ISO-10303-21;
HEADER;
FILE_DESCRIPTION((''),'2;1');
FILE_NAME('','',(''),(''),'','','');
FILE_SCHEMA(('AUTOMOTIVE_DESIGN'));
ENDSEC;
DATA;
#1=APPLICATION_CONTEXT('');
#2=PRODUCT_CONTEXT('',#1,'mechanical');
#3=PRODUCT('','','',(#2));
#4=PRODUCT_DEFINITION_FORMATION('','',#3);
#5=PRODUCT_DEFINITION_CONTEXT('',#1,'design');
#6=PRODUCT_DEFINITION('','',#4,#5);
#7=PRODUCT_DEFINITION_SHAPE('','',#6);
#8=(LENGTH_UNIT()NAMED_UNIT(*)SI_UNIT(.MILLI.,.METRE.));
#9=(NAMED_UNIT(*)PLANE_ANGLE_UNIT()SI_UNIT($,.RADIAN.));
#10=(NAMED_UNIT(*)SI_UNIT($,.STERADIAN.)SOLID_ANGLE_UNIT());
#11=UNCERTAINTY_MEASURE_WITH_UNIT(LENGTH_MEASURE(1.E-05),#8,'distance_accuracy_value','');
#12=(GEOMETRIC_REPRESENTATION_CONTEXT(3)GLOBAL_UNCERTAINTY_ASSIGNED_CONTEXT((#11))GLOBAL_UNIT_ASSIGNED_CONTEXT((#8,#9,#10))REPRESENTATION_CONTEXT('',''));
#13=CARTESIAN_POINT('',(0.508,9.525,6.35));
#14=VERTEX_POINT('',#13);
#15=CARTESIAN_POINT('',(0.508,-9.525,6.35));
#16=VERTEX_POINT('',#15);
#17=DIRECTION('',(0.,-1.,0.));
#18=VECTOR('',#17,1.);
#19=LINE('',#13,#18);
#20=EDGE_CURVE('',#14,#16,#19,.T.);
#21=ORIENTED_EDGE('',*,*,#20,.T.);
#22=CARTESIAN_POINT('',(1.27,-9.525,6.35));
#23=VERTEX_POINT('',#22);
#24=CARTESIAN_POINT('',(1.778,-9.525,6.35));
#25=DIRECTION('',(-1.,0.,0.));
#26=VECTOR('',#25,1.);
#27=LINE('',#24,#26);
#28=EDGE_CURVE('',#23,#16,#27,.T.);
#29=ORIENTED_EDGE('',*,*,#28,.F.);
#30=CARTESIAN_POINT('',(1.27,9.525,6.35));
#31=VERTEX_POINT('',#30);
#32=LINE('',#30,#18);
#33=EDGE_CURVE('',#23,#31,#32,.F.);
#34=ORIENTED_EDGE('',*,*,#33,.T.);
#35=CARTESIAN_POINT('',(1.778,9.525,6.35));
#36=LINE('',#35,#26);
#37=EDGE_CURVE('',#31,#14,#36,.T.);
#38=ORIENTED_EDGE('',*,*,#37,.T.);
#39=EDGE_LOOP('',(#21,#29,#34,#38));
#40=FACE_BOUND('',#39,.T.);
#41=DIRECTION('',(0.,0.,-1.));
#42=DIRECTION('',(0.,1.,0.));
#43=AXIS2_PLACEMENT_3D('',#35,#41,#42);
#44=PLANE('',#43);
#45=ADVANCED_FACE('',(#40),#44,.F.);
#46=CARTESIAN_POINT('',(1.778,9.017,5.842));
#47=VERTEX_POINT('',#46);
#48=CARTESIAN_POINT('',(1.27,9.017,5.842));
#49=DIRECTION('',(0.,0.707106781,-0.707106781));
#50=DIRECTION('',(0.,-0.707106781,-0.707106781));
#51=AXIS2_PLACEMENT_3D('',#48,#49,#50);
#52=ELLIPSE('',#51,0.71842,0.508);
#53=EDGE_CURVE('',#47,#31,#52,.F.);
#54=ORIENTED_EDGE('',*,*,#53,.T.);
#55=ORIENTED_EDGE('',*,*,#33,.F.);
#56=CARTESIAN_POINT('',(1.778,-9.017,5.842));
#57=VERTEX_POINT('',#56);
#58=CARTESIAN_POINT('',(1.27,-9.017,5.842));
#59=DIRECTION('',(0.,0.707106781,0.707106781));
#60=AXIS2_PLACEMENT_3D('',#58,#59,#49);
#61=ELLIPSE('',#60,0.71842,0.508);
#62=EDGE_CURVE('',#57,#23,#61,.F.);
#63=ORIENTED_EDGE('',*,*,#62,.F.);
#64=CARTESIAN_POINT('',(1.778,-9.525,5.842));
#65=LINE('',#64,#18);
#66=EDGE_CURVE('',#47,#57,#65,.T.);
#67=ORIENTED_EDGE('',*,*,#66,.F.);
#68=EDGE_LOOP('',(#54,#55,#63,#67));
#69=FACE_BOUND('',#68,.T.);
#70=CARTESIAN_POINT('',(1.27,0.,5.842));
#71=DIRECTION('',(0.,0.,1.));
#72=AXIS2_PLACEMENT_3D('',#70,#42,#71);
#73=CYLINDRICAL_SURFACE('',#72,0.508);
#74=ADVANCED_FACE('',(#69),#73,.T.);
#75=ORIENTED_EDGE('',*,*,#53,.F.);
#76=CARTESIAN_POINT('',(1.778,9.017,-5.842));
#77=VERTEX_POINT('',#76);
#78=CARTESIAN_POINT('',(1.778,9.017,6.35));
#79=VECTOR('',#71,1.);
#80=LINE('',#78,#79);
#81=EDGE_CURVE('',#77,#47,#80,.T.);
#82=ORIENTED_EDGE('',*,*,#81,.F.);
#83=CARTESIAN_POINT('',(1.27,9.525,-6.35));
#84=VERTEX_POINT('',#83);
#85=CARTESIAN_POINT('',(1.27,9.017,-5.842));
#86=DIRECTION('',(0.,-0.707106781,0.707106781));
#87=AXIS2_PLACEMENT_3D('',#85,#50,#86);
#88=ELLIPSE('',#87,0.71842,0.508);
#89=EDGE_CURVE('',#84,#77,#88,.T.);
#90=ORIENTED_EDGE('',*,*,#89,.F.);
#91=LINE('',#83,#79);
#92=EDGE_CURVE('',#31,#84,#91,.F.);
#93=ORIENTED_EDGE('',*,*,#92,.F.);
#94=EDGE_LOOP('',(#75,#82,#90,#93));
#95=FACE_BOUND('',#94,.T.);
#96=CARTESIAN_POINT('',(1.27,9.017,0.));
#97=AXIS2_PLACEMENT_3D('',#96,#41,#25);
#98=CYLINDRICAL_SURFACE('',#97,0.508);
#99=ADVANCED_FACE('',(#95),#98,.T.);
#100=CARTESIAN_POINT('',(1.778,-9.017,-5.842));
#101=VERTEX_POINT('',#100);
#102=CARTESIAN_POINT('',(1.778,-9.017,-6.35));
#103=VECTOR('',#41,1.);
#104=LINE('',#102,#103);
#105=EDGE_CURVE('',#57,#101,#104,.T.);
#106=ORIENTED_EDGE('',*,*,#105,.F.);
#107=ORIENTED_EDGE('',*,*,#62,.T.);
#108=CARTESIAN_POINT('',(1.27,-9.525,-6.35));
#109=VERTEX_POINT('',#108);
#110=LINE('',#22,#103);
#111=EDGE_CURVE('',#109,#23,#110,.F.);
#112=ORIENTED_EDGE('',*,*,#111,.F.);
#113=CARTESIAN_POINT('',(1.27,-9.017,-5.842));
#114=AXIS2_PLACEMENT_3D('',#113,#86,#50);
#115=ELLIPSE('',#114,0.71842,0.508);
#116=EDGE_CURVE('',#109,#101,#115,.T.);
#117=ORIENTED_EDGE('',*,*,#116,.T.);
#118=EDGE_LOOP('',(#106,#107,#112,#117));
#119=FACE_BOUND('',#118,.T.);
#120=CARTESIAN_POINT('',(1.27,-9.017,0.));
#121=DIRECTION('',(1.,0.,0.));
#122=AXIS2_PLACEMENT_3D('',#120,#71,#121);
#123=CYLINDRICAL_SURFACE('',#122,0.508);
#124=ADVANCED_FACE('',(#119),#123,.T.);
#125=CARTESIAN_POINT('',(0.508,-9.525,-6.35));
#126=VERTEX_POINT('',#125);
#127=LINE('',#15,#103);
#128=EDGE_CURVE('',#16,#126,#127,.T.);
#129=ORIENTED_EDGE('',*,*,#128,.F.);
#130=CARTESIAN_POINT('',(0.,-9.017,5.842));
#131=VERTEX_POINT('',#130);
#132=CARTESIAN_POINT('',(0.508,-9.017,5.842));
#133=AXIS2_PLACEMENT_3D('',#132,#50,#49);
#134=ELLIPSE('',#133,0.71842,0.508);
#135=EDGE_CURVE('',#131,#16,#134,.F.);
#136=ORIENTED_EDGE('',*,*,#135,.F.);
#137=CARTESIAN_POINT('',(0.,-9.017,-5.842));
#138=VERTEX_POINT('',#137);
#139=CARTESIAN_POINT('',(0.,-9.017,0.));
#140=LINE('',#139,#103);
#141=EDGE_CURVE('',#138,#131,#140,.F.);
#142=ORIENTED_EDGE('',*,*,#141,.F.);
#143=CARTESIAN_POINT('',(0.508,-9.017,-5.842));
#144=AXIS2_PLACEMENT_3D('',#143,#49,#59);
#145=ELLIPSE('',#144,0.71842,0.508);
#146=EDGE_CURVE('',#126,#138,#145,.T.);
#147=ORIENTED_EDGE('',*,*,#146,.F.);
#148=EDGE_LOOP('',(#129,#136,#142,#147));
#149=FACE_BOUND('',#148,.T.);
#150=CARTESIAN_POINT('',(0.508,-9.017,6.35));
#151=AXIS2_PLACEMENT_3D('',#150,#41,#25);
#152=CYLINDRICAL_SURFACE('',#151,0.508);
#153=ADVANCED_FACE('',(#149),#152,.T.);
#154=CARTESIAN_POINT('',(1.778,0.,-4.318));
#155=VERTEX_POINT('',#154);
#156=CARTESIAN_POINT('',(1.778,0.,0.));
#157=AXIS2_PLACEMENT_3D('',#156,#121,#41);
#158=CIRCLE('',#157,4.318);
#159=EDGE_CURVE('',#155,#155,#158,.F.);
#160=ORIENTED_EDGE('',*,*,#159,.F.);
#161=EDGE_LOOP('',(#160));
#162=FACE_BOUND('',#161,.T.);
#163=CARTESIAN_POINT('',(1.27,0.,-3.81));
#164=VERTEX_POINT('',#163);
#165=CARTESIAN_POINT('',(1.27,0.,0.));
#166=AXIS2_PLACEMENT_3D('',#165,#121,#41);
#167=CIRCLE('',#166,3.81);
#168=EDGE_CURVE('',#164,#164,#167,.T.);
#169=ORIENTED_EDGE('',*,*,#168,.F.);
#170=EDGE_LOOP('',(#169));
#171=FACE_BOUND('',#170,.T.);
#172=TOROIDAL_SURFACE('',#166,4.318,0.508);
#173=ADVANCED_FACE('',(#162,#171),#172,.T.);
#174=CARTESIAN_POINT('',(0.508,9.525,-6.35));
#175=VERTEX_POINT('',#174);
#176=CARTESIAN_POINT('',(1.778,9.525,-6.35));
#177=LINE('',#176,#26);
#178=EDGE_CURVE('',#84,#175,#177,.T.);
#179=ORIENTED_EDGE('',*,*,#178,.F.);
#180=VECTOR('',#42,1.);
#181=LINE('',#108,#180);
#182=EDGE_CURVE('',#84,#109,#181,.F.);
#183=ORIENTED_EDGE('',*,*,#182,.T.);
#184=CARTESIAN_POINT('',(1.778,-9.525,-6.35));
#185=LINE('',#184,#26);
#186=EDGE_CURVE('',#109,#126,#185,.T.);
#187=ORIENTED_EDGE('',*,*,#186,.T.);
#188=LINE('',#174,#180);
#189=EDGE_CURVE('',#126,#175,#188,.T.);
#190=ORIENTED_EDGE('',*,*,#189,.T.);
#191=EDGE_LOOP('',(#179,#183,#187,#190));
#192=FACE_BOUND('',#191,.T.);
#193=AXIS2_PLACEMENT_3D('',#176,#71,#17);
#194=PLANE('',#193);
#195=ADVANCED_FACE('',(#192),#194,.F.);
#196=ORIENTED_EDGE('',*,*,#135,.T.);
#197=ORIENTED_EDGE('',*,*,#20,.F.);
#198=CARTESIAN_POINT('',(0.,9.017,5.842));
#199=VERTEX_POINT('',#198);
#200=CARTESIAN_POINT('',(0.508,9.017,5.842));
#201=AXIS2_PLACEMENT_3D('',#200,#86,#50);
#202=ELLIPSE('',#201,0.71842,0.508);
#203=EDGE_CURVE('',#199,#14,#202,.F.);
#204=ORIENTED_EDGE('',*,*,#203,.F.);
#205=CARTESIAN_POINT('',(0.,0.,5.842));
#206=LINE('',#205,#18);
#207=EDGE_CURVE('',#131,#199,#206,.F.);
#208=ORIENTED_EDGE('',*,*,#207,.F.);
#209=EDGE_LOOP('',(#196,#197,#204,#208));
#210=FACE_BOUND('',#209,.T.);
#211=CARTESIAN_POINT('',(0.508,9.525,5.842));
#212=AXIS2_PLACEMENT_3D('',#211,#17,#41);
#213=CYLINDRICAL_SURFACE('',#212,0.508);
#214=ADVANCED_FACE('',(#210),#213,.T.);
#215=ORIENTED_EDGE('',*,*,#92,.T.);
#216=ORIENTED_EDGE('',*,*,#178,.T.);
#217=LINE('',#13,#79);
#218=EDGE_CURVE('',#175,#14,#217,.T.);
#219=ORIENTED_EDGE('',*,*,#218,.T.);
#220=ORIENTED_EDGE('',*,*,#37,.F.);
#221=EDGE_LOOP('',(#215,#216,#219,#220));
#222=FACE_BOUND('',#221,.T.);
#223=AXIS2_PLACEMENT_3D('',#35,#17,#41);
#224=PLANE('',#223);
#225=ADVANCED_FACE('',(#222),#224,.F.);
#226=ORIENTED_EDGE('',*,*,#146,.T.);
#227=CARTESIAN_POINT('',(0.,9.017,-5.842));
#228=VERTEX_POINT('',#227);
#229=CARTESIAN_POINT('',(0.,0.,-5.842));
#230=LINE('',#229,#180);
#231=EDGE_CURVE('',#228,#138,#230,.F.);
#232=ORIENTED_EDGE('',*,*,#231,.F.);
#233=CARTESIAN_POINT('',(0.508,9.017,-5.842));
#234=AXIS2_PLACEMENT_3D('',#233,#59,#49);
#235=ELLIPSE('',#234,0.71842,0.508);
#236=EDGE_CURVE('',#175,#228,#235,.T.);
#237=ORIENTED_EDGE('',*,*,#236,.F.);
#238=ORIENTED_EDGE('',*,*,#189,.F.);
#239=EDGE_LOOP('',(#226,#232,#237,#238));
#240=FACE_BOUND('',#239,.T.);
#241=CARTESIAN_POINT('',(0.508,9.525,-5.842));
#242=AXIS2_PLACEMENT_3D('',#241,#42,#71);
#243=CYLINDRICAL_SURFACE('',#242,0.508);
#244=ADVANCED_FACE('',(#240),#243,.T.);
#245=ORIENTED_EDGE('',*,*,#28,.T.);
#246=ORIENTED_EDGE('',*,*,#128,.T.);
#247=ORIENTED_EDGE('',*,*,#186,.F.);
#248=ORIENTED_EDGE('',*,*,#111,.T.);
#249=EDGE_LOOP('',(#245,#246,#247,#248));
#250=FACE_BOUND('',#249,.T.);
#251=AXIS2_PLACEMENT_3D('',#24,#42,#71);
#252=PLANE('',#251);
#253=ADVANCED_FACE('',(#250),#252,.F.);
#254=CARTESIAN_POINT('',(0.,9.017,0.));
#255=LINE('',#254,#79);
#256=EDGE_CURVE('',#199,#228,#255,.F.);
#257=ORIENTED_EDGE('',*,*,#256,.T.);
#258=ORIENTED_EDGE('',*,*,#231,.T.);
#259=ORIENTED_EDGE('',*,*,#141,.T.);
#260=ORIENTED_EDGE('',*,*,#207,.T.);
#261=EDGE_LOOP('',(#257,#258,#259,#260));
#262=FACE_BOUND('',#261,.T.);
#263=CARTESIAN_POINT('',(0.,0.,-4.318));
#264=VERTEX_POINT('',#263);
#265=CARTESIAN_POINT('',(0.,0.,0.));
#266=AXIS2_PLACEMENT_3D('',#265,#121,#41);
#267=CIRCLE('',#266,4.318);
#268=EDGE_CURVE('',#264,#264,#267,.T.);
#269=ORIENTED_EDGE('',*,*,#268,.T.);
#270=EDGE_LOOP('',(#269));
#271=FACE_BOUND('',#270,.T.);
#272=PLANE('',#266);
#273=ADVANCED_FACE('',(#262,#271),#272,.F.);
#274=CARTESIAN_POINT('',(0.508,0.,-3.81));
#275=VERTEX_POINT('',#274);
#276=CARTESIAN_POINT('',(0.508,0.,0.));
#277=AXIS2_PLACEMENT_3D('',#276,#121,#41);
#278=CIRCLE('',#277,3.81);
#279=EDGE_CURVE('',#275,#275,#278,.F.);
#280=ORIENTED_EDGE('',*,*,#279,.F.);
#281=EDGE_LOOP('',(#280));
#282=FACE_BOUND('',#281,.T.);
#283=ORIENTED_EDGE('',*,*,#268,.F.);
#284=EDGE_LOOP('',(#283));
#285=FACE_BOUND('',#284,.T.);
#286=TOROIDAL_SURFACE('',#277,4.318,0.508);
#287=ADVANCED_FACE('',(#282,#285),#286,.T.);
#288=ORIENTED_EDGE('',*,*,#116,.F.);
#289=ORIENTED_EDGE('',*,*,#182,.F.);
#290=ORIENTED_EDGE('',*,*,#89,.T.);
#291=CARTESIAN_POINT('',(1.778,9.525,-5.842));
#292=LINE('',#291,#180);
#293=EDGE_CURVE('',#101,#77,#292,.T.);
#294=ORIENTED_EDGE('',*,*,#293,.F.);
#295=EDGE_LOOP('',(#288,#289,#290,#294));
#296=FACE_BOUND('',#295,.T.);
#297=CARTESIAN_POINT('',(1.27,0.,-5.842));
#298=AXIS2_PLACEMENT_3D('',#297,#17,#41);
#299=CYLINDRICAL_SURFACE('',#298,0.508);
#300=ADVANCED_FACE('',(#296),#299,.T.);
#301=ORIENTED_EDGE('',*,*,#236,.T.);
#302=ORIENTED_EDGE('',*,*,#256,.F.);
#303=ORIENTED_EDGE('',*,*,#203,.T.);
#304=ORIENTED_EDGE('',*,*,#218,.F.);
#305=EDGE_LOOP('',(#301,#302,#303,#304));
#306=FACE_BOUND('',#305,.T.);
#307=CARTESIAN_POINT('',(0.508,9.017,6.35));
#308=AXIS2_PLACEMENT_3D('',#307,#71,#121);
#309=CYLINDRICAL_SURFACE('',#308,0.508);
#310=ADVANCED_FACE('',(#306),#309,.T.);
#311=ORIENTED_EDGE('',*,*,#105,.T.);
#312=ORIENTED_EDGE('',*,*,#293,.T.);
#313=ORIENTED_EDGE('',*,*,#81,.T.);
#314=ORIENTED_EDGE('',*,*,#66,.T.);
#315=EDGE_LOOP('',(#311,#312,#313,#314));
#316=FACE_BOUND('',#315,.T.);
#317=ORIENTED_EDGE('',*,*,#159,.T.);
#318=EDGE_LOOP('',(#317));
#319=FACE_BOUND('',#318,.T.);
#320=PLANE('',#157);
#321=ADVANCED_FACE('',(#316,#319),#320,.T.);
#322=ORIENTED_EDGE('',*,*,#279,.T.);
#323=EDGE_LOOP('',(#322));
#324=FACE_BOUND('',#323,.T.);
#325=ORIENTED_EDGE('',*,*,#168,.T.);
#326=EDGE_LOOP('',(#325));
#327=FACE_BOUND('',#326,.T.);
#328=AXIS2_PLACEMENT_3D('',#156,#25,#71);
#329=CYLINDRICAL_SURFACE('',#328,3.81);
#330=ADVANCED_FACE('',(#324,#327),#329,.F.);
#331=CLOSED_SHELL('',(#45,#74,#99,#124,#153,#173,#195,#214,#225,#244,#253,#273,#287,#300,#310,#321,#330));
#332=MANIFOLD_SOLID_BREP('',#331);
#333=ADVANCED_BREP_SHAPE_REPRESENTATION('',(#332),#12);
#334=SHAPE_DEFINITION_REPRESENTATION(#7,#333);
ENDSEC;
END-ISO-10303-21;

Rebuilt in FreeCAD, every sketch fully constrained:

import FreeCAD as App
import Part
import Sketcher

V = App.Vector
Q = App.Units.Quantity


def edges_at(feature, points):
    """Names of the edges that pass closest to the given points."""
    edges = feature.Shape.Edges
    near = lambda p: min(range(len(edges)), key=lambda i: edges[i].distToShape(Part.Vertex(*p))[0])
    return sorted({f"Edge{near(p) + 1}" for p in points})

doc = App.newDocument("Part")
params = doc.addObject("Spreadsheet::Sheet", "Params")
for row, (alias, value) in enumerate([
    ("sketch1_diameter", "0.3 in"),
    ("sketch1_height", "0.5 in"),
    ("sketch1_width", "0.75 in"),
    ("pad1_length", "0.07 in"),
    ("fillet_radius", "0.02 in"),
], start=1):
    params.set(f"A{row}", alias)
    params.set(f"B{row}", "=" + value)
    params.setAlias(f"B{row}", alias)

body = doc.addObject("PartDesign::Body", "Body")

sketch1 = doc.addObject("Sketcher::SketchObject", "Sketch")
body.addObject(sketch1)
sketch1.AttachmentSupport = (doc.YZ_Plane, [""])
sketch1.MapMode = "FlatFace"
sketch1.addGeometry(Part.LineSegment(V(9.525, 6.35, 0), V(-9.525, 6.35, 0)), False)
sketch1.addGeometry(Part.LineSegment(V(-9.525, 6.35, 0), V(-9.525, -6.35, 0)), False)
sketch1.addGeometry(Part.LineSegment(V(-9.525, -6.35, 0), V(9.525, -6.35, 0)), False)
sketch1.addGeometry(Part.LineSegment(V(9.525, -6.35, 0), V(9.525, 6.35, 0)), False)
sketch1.addGeometry(Part.Circle(V(0, 0, 0), V(0, 0, 1), 3.81), False)
sketch1.addConstraint(Sketcher.Constraint("Coincident", 0, 2, 1, 1))
sketch1.addConstraint(Sketcher.Constraint("Coincident", 1, 2, 2, 1))
sketch1.addConstraint(Sketcher.Constraint("Coincident", 2, 2, 3, 1))
sketch1.addConstraint(Sketcher.Constraint("Coincident", 3, 2, 0, 1))
sketch1.addConstraint(Sketcher.Constraint("Horizontal", 0))
sketch1.addConstraint(Sketcher.Constraint("Vertical", 1))
sketch1.addConstraint(Sketcher.Constraint("Horizontal", 2))
sketch1.addConstraint(Sketcher.Constraint("Vertical", 3))
sketch1.addConstraint(Sketcher.Constraint("Coincident", 4, 3, -1, 1))
sketch1.addConstraint(Sketcher.Constraint("Symmetric", 0, 2, 2, 2, -1, 1))
sketch1.addConstraint(Sketcher.Constraint("Diameter", 4, Q("0.3 in")))
sketch1.addConstraint(Sketcher.Constraint("DistanceY", 1, 2, 1, 1, Q("0.5 in")))
sketch1.addConstraint(Sketcher.Constraint("DistanceX", 0, 2, 0, 1, Q("0.75 in")))
sketch1.setExpression("Constraints[10]", "Params.sketch1_diameter")
sketch1.setExpression("Constraints[11]", "Params.sketch1_height")
sketch1.setExpression("Constraints[12]", "Params.sketch1_width")
pad1 = doc.addObject("PartDesign::Pad", "Pad")
body.addObject(pad1)
pad1.Profile = sketch1
pad1.setExpression("Length", "Params.pad1_length")
doc.recompute()

fillet = doc.addObject("PartDesign::Fillet", "Fillet")
body.addObject(fillet)
fillet.Base = (pad1, edges_at(pad1, [
    (0, 0, 3.81),
    (1.778, 0, 3.81),
    (1.778, 0, 6.35),
    (1.778, -9.525, 0),
    (1.778, 0, -6.35),
    (0, -9.525, 0),
    (0, 0, 6.35),
    (0, 9.525, 0),
    (0, 0, -6.35),
    (1.778, 9.525, 0),
]))
fillet.setExpression("Radius", "Params.fillet_radius")

doc.recompute()
